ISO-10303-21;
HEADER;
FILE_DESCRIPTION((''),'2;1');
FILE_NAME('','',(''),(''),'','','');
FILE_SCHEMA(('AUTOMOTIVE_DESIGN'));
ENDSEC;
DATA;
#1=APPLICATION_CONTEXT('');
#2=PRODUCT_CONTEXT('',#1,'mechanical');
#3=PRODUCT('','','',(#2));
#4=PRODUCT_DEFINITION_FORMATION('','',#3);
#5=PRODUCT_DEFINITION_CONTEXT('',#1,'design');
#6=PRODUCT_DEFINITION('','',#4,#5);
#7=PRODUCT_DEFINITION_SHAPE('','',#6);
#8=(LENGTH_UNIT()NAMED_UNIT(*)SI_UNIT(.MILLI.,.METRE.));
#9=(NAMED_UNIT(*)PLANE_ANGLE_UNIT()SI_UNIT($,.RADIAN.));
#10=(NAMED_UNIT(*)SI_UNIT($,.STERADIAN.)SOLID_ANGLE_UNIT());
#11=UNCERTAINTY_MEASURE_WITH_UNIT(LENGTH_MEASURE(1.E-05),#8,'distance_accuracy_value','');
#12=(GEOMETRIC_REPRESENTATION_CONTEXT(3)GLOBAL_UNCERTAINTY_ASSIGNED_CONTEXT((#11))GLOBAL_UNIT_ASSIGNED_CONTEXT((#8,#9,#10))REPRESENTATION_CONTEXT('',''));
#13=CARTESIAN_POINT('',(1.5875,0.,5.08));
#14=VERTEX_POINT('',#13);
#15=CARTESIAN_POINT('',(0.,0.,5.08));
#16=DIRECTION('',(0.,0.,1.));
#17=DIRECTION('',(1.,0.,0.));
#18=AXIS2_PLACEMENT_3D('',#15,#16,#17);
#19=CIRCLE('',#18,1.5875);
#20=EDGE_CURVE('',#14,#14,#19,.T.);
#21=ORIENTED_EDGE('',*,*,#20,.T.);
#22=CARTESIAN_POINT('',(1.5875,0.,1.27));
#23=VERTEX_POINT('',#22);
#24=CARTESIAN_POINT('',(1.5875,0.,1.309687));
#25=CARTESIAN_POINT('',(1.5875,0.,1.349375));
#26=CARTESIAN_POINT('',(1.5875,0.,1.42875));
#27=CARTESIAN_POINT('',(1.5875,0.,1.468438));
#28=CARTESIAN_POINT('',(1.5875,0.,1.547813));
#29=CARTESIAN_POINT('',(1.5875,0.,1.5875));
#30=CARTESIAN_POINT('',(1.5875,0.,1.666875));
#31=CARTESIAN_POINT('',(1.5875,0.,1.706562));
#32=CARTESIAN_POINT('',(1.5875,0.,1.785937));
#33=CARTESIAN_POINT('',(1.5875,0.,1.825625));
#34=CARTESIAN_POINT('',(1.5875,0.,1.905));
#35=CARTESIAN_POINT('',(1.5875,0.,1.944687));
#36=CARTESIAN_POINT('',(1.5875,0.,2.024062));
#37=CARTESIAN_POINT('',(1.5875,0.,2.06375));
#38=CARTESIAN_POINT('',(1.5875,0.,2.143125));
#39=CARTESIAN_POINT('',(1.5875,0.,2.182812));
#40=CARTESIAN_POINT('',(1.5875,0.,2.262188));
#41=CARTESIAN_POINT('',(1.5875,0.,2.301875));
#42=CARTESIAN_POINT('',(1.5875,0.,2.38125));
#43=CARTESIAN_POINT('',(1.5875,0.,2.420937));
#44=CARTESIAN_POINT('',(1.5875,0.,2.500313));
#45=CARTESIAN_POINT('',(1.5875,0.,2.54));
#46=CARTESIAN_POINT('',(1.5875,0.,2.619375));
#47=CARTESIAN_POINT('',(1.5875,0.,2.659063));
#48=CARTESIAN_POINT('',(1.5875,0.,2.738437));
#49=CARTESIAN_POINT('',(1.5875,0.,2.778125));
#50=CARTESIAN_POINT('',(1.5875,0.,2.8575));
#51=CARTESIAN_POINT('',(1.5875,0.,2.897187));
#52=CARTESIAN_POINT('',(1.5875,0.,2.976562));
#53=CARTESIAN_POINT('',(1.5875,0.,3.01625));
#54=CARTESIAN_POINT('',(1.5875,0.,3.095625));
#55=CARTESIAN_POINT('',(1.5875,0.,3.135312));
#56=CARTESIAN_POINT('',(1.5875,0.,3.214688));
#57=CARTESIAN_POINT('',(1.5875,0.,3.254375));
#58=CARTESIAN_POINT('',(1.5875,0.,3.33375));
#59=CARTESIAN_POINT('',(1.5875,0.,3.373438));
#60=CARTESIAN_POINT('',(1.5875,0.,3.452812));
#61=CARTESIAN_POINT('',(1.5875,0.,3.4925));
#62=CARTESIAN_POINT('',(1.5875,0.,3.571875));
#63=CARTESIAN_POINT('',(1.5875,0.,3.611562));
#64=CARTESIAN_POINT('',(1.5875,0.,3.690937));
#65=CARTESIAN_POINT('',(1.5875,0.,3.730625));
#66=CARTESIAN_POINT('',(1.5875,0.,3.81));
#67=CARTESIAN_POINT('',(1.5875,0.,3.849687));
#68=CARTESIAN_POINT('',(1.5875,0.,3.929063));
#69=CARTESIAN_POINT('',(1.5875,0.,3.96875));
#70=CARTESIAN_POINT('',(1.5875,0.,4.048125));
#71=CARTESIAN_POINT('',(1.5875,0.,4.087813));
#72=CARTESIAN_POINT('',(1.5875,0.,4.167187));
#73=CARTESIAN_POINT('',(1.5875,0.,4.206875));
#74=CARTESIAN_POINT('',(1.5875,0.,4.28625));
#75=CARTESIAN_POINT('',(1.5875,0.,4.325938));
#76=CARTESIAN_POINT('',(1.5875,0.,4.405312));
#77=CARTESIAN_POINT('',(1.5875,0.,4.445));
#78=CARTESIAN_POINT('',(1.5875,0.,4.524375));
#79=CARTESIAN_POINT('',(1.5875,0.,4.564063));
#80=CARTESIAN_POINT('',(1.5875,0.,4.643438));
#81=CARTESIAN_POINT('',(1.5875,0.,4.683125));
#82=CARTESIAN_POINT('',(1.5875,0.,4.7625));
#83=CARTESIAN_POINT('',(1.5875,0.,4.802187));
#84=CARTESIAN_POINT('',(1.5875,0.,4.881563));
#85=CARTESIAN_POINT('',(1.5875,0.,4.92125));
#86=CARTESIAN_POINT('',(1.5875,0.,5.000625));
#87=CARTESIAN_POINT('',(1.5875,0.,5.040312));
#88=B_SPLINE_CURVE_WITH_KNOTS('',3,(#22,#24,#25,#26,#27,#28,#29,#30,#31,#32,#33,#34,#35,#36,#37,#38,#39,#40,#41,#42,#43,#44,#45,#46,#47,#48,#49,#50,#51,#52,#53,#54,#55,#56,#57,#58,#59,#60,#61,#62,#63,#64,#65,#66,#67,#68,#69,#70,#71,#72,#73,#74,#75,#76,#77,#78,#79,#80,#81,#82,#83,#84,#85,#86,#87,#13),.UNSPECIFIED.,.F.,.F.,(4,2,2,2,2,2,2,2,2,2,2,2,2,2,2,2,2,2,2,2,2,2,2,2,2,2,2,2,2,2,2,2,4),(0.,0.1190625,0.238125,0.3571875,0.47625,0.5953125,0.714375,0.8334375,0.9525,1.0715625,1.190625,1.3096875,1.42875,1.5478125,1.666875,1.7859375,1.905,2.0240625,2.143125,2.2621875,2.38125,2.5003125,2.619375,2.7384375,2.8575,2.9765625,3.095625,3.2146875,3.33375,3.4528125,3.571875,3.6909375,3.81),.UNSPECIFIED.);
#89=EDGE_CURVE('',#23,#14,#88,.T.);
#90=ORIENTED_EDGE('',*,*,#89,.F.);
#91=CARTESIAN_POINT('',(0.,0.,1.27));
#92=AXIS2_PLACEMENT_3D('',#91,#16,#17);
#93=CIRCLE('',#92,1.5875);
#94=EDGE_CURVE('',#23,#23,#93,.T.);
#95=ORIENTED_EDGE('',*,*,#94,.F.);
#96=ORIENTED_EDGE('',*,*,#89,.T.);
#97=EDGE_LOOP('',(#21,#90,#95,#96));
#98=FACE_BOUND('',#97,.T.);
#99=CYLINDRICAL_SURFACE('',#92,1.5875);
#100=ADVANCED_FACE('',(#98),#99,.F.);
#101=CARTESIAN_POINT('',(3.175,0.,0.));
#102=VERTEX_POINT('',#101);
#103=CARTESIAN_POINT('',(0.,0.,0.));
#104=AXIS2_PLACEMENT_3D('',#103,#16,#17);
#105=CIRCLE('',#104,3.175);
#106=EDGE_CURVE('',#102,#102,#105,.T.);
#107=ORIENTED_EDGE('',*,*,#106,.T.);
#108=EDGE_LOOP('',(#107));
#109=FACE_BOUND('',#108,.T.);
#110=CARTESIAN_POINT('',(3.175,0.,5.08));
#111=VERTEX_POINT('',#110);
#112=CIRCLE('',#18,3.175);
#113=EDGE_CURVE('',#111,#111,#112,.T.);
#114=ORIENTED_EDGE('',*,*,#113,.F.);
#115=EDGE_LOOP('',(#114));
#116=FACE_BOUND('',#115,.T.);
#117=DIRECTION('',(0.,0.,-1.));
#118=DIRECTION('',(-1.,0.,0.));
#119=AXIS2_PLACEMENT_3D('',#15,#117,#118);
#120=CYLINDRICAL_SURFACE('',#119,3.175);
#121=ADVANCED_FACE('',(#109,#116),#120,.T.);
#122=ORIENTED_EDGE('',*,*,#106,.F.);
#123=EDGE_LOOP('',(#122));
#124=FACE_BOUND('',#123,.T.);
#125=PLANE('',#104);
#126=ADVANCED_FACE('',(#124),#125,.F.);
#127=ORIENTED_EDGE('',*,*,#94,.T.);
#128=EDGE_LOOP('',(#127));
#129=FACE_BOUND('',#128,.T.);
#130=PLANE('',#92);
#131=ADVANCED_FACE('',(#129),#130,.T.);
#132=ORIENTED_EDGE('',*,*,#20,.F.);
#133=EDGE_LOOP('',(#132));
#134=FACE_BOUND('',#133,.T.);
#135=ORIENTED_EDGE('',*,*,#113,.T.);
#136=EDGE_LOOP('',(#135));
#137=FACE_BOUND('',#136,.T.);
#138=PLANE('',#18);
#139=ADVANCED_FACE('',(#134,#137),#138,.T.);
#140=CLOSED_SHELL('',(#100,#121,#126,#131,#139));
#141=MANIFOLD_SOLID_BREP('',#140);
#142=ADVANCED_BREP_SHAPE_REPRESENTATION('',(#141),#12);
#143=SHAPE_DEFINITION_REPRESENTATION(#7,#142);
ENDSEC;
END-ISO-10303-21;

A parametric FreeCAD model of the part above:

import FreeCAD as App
import Part
import Sketcher
from FreeCAD import Vector
Q = App.Units.Quantity

doc = App.newDocument("Part")
params = doc.addObject("Spreadsheet::Sheet", "Params")
for row, (alias, value) in enumerate([
    ("sketch1_diameter", "0.25 in"),
    ("pad1_length", "0.2 in"),
    ("sketch2_diameter", "0.125 in"),
    ("pocket1_length", "0.15 in"),
], start=1):
    params.set(f"A{row}", alias)
    params.set(f"B{row}", "=" + value)
    params.setAlias(f"B{row}", alias)

body = doc.addObject("PartDesign::Body", "Body")

# Sketch on XY plane
sketch1 = body.newObject("Sketcher::SketchObject", "Sketch")
sketch1.AttachmentSupport = (doc.getObject("XY_Plane"), [""])
sketch1.MapMode = "FlatFace"
sketch1.addGeometry(Part.Circle(Vector(0, 0, 0), Vector(0, 0, 1), 3.2), False)
sketch1.addConstraint([
    Sketcher.Constraint("Coincident", 0, 3, -1, 1),
    Sketcher.Constraint("Diameter", 0, Q("0.25 in")),
])
sketch1.setExpression("Constraints[1]", "Params.sketch1_diameter")
pad1 = body.newObject("PartDesign::Pad", "Pad")
pad1.Profile = sketch1
pad1.setExpression("Length", "Params.pad1_length")

# Sketch on XY plane
sketch2 = body.newObject("Sketcher::SketchObject", "Sketch001")
sketch2.AttachmentSupport = (doc.getObject("XY_Plane"), [""])
sketch2.MapMode = "FlatFace"
sketch2.AttachmentOffset = App.Placement(Vector(0, 0, 0.2 * 25.4), App.Rotation())
sketch2.addGeometry(Part.Circle(Vector(0, 0, 0), Vector(0, 0, 1), 1.6), False)
sketch2.addConstraint([
    Sketcher.Constraint("Coincident", 0, 3, -1, 1),
    Sketcher.Constraint("Diameter", 0, Q("0.125 in")),
])
sketch2.setExpression("Constraints[1]", "Params.sketch2_diameter")
pocket1 = body.newObject("PartDesign::Pocket", "Pocket")
pocket1.Profile = sketch2
pocket1.setExpression("Length", "Params.pocket1_length")

doc.recompute()
